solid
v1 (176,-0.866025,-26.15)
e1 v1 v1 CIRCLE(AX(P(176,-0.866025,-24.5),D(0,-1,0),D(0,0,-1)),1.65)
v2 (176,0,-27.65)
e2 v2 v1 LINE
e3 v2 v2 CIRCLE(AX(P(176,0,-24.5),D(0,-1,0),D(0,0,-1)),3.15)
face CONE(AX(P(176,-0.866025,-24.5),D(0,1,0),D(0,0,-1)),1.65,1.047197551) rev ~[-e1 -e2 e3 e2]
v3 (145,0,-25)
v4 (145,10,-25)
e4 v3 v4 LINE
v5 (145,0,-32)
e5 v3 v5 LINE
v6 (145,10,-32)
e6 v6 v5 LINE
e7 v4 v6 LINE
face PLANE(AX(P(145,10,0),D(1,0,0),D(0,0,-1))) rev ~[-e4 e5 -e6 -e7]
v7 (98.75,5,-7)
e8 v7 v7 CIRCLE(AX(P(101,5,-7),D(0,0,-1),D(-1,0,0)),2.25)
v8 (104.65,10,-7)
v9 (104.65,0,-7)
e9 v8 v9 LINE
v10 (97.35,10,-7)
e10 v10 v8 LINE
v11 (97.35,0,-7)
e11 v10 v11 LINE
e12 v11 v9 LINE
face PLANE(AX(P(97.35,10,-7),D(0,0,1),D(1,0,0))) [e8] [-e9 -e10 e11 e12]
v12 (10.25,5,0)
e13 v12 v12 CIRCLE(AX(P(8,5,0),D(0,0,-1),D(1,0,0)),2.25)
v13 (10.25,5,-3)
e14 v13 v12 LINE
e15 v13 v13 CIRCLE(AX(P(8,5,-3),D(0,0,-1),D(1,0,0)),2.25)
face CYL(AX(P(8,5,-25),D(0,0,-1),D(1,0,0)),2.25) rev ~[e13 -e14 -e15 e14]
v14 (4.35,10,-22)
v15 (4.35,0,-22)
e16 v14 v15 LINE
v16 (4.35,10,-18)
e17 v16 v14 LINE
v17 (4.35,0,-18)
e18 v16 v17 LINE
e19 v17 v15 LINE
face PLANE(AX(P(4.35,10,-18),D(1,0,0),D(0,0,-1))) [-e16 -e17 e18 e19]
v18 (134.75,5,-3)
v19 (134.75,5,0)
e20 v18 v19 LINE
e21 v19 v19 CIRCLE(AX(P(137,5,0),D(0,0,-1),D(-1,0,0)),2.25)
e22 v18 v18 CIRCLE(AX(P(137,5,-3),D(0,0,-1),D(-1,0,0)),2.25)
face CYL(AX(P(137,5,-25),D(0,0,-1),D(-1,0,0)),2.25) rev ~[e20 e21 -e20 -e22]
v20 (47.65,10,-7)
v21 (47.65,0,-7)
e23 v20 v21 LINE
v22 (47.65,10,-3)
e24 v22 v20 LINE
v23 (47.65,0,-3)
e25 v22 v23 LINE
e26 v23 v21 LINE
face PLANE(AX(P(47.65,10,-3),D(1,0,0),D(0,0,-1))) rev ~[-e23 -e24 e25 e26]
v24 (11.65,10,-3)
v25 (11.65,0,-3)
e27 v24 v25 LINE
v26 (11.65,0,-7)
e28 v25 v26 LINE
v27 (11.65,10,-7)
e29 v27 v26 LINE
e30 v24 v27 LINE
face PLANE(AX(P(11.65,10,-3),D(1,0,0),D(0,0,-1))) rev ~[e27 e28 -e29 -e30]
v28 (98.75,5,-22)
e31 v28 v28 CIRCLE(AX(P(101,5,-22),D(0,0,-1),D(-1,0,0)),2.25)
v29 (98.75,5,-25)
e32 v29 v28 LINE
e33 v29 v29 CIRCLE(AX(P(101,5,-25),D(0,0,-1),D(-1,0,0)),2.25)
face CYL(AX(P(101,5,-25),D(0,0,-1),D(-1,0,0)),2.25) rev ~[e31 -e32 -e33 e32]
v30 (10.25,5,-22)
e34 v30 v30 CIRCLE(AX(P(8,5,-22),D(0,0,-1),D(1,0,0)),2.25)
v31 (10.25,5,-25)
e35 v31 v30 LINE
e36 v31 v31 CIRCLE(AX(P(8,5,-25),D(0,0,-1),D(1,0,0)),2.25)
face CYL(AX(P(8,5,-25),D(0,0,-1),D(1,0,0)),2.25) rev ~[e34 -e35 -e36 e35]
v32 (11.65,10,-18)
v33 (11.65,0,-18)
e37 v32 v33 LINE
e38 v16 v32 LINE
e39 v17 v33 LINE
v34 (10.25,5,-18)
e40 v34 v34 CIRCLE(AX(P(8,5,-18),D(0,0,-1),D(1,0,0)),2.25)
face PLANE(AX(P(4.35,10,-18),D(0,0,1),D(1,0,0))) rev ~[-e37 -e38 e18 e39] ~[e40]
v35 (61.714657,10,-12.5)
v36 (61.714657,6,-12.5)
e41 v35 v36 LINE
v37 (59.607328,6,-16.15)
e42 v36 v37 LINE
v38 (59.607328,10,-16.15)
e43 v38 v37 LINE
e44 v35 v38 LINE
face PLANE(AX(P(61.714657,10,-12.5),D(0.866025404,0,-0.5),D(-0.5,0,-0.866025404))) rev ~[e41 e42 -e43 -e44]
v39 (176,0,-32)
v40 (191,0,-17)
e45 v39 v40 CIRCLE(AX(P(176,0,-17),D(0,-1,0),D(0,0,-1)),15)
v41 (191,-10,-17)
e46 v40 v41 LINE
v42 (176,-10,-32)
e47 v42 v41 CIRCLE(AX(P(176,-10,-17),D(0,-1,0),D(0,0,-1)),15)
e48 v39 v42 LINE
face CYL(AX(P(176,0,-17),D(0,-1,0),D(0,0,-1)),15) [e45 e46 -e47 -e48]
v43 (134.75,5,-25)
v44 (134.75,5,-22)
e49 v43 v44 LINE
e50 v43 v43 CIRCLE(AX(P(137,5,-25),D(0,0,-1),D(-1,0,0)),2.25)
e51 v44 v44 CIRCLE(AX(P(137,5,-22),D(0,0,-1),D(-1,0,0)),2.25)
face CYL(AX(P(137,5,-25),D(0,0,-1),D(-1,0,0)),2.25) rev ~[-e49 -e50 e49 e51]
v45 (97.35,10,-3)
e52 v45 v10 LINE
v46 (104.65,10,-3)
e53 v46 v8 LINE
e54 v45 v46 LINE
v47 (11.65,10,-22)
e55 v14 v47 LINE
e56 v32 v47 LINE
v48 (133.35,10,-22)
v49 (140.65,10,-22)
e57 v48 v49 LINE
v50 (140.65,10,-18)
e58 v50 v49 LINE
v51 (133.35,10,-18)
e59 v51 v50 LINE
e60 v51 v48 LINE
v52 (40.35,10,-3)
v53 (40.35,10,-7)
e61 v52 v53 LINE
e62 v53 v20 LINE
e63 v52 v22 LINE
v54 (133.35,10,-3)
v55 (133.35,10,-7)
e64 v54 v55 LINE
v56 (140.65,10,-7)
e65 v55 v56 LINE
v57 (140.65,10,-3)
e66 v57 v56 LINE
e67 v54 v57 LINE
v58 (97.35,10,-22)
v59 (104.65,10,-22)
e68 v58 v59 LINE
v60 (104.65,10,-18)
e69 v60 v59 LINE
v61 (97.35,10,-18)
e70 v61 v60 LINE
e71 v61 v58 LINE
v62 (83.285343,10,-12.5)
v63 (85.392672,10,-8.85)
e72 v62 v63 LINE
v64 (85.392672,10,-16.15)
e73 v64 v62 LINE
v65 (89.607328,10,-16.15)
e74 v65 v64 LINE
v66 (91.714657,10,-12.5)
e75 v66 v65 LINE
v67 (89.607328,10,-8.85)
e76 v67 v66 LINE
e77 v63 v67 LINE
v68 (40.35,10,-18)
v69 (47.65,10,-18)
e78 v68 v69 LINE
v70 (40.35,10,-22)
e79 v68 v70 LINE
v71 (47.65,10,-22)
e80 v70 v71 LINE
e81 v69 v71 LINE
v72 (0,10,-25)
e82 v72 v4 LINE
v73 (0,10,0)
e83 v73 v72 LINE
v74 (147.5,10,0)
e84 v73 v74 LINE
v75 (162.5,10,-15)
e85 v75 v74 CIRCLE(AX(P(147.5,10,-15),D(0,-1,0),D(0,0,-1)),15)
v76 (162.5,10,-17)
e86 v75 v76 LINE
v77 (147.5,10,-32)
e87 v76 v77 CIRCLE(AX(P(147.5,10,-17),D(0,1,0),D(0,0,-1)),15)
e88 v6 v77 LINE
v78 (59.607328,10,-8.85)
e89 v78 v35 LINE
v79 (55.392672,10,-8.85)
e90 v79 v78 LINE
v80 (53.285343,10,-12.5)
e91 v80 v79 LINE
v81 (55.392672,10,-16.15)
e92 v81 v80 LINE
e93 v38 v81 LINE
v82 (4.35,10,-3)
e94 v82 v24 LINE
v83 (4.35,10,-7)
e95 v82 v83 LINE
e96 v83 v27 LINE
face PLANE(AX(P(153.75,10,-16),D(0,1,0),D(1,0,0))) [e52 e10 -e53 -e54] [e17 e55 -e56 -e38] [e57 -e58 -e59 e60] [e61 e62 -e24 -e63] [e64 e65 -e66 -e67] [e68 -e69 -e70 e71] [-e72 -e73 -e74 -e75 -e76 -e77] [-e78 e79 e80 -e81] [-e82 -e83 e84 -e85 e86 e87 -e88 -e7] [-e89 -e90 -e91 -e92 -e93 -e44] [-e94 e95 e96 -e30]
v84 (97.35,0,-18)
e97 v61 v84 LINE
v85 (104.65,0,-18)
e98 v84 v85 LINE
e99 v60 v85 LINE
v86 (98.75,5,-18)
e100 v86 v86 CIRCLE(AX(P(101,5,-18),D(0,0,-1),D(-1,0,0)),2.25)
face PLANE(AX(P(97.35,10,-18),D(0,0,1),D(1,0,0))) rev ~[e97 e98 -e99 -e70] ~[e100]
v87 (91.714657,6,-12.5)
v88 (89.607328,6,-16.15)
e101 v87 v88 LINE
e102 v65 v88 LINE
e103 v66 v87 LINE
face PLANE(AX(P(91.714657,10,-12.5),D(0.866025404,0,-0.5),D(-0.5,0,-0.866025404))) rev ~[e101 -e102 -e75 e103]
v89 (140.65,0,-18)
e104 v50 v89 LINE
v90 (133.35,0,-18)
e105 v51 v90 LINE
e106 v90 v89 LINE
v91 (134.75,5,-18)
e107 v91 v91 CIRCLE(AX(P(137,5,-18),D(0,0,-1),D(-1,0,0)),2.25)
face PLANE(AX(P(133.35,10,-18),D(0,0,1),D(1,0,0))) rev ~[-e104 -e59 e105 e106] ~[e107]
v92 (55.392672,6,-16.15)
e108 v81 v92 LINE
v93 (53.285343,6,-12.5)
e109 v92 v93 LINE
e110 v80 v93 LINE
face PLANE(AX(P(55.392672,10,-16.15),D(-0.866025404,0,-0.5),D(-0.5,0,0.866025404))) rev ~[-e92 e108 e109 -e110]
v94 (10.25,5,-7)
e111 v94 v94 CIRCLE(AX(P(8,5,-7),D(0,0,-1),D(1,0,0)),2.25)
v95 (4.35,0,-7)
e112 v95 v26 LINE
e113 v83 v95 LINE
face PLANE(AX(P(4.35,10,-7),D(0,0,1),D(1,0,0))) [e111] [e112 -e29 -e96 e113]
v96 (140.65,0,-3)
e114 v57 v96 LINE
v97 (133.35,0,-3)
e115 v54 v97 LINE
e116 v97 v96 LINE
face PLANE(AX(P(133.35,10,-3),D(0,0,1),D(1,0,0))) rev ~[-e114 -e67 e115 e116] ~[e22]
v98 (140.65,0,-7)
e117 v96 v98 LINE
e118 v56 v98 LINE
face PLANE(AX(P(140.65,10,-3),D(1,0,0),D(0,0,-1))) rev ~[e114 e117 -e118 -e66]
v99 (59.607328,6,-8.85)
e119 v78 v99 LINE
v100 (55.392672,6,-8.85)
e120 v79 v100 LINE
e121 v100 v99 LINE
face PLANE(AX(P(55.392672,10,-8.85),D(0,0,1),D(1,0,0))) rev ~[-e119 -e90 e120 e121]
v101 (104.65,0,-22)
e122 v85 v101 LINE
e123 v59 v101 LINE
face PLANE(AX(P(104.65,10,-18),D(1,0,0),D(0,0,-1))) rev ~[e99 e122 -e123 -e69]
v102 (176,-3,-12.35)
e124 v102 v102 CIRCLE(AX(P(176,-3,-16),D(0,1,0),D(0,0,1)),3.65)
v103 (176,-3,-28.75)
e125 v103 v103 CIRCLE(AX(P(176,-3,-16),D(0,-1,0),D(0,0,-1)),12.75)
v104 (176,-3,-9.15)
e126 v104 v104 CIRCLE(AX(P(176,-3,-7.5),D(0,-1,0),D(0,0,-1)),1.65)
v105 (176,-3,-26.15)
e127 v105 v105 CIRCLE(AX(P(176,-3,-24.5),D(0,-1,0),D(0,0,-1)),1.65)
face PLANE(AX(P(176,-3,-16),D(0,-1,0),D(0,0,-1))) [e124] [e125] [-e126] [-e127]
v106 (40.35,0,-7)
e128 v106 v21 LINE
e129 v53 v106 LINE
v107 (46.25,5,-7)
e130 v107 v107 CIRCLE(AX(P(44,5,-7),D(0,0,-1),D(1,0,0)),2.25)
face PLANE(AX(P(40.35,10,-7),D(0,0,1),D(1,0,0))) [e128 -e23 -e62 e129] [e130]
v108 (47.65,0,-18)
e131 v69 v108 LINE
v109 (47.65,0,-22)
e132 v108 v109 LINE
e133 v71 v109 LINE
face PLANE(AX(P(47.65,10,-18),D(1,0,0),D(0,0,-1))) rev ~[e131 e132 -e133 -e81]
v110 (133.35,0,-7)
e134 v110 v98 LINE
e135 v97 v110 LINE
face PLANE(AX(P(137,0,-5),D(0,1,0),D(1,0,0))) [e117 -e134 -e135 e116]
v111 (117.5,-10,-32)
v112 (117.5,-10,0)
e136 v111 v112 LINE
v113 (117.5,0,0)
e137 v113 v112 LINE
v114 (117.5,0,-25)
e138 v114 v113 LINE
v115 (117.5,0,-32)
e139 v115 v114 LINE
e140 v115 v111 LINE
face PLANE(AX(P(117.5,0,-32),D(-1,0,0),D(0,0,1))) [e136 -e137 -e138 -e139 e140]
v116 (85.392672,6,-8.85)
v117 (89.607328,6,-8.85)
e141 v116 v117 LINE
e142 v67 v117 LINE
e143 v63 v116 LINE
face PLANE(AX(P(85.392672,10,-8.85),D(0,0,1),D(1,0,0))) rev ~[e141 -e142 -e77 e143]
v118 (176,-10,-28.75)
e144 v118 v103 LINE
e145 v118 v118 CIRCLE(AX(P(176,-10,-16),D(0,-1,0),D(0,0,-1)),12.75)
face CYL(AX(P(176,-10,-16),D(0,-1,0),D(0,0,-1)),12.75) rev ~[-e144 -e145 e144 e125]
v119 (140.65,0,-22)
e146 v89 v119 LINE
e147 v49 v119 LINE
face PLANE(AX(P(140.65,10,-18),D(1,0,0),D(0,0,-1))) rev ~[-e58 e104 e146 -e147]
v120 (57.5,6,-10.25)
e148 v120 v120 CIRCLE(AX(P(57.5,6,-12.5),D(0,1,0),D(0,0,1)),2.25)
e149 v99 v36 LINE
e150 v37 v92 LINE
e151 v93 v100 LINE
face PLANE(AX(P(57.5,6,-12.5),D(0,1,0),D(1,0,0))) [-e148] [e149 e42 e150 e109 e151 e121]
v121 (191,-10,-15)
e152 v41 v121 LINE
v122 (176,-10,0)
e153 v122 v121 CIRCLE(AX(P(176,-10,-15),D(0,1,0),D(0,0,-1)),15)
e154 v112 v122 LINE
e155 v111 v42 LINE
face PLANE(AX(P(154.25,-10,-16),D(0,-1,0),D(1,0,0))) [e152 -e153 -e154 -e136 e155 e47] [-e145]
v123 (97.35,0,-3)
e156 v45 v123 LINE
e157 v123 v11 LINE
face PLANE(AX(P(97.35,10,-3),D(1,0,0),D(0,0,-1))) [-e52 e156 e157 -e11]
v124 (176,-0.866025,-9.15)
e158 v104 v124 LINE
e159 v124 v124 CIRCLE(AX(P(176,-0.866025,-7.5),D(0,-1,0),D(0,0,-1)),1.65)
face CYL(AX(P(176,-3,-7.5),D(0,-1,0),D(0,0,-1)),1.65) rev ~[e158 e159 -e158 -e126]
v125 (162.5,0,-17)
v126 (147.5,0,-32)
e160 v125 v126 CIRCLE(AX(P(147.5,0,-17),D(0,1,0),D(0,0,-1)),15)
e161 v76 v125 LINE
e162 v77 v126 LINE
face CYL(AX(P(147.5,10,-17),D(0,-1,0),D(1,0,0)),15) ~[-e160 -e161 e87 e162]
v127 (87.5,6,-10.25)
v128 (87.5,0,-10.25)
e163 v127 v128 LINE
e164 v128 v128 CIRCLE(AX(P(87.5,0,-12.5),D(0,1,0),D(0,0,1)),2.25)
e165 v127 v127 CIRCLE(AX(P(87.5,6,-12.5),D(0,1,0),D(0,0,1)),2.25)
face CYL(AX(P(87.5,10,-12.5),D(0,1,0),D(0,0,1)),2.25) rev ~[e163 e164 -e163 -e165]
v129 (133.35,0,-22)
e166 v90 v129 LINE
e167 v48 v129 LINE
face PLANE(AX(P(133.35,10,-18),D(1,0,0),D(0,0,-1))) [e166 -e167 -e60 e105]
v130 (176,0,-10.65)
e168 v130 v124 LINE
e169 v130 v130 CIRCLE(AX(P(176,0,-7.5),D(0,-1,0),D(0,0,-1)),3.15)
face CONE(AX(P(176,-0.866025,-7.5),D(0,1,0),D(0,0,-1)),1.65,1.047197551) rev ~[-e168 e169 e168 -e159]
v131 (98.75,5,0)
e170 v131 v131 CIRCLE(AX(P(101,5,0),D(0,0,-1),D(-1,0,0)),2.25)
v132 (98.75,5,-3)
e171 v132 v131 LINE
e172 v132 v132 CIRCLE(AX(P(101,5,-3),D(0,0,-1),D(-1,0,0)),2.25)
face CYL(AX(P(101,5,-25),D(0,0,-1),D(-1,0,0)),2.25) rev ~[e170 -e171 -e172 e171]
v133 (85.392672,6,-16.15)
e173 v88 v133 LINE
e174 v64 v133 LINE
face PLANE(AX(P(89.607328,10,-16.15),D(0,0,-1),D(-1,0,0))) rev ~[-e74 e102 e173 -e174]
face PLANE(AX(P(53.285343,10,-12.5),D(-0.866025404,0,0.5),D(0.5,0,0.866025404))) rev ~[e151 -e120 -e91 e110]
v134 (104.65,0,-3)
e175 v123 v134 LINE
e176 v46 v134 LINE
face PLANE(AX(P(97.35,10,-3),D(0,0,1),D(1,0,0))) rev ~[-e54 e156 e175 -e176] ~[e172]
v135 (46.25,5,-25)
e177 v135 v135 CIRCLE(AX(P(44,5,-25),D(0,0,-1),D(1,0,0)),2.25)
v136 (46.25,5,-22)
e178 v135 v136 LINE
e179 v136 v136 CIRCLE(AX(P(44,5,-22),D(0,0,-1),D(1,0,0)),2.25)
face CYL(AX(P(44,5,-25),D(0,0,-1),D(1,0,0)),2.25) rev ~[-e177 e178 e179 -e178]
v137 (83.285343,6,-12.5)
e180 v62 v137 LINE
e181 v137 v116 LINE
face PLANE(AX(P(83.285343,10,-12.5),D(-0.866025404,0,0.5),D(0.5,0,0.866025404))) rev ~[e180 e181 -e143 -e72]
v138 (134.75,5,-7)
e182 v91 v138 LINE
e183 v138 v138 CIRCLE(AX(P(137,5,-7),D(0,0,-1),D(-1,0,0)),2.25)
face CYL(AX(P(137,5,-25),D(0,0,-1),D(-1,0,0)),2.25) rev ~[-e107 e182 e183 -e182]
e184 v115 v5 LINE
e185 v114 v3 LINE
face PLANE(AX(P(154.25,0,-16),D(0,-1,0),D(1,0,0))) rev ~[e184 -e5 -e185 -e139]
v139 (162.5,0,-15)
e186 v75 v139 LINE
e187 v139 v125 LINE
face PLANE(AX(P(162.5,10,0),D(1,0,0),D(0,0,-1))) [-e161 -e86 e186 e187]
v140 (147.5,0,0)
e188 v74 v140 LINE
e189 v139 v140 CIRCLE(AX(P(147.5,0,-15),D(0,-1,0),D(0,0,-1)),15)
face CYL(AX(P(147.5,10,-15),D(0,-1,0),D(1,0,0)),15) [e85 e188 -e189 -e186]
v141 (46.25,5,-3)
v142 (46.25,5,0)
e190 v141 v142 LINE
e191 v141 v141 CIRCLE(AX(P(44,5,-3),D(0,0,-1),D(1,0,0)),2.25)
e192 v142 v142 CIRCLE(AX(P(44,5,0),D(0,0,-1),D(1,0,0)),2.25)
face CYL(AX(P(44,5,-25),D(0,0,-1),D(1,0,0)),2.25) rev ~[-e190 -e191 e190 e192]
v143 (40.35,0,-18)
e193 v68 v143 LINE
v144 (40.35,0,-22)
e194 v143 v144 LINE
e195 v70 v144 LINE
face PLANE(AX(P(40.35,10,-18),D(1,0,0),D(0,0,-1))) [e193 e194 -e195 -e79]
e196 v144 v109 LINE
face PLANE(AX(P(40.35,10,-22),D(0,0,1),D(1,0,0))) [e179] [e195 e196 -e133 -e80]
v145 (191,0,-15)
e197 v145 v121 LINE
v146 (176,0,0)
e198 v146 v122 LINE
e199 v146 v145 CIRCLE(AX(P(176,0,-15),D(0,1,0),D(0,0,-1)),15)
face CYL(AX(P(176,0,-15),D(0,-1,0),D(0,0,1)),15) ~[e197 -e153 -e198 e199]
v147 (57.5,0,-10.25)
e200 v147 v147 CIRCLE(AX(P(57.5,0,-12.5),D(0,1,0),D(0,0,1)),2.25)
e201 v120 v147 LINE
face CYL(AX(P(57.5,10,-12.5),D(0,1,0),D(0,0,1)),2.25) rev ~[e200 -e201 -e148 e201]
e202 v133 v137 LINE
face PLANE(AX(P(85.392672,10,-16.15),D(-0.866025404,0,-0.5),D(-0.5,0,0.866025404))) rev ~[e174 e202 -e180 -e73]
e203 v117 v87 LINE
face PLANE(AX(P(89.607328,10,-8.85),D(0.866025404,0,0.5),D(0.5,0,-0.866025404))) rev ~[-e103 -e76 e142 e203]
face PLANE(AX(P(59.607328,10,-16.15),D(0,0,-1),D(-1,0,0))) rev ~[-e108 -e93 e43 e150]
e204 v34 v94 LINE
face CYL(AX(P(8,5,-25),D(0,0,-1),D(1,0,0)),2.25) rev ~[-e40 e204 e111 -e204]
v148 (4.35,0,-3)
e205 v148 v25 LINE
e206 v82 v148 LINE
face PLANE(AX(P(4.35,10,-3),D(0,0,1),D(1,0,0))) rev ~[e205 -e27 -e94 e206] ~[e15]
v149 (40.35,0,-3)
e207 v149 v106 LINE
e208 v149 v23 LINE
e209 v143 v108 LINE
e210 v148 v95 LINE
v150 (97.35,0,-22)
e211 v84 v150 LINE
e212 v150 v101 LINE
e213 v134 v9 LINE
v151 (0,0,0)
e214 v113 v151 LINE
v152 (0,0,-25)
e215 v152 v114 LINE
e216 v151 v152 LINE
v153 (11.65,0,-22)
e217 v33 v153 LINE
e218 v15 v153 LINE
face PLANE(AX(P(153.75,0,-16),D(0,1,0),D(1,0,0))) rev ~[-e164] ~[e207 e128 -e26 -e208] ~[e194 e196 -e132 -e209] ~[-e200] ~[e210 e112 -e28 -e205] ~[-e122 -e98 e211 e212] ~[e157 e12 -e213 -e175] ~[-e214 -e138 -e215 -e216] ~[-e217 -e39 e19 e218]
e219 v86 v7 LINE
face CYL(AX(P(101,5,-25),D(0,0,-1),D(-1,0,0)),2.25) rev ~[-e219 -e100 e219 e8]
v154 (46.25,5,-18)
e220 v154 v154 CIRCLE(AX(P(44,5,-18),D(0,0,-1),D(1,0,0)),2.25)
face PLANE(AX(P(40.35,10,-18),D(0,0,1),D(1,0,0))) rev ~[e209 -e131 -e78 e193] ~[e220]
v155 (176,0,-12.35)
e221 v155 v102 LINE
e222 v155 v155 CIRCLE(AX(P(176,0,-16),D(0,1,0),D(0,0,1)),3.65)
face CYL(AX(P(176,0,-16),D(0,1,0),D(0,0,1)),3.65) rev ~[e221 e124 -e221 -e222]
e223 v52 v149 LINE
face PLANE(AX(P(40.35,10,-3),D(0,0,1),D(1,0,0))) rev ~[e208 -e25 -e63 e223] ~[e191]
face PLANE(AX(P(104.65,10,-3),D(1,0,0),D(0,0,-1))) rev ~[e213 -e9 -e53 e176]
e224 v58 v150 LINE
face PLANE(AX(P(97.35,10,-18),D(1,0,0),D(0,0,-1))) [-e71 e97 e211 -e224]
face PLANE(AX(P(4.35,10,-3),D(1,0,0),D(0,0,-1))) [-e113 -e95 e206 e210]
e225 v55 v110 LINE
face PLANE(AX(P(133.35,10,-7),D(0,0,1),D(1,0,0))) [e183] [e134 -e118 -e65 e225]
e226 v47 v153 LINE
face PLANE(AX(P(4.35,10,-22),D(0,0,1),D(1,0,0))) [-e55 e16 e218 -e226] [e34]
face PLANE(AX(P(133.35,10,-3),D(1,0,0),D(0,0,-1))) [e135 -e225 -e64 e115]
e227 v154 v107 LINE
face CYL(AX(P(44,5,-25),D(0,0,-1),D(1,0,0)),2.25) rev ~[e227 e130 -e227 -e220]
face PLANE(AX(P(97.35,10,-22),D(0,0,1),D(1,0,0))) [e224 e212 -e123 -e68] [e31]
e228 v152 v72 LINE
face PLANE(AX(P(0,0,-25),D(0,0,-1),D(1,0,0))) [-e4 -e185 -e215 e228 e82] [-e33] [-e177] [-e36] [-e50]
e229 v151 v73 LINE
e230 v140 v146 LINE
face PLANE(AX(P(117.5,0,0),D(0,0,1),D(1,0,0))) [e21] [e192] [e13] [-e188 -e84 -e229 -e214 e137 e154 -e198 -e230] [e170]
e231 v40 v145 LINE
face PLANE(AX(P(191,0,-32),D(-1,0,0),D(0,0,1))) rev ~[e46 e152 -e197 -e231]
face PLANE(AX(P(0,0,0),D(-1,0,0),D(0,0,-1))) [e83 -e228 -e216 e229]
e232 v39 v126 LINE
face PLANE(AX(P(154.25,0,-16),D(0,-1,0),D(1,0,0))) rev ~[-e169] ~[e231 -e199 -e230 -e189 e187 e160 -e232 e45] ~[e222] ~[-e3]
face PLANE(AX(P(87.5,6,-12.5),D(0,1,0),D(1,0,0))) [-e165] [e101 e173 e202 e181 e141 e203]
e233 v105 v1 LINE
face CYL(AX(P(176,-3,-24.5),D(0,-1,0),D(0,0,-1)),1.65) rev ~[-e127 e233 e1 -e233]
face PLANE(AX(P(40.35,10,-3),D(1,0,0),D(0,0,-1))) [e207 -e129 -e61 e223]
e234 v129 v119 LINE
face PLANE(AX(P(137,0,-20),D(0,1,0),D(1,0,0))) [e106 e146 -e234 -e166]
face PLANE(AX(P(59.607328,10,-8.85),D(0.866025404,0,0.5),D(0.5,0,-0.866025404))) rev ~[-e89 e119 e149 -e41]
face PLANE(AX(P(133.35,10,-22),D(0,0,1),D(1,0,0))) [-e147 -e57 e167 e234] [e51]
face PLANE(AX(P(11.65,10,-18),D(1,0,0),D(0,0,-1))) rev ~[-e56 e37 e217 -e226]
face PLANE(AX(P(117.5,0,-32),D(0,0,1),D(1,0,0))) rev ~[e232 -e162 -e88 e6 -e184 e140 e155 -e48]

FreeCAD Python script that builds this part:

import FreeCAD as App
import Part
import Sketcher
Q = App.Units.Quantity


def edges_at(feature, points):
    """Names of the edges that pass closest to the given points."""
    edges = feature.Shape.Edges
    near = lambda p: min(range(len(edges)), key=lambda i: edges[i].distToShape(Part.Vertex(*p))[0])
    return sorted({f"Edge{near(p) + 1}" for p in points})

doc = App.newDocument("Part")
params = doc.addObject("Spreadsheet::Sheet", "Params")
for row, (alias, value) in enumerate([
    ("sketch1_width", "145 mm"),
    ("sketch1_height", "25 mm"),
    ("pad1_length", "10 mm"),
    ("sketch2_height", "32 mm"),
    ("sketch2_width", "17.5 mm"),
    ("pad2_length", "10 mm"),
    ("sketch3_height", "32 mm"),
    ("sketch3_width", "73.5 mm"),
    ("pad3_length", "10 mm"),
    ("sketch4_diameter", "4.5 mm"),
    ("sketch5_height", "4 mm"),
    ("sketch5_width", "7.3 mm"),
    ("pocket2_length", "10 mm"),
    ("sketch6_diameter", "7.3 mm"),
    ("sketch7_diameter", "25.5 mm"),
    ("pocket4_length", "7 mm"),
    ("sketch8_diameter", "3.3 mm"),
    ("sketch9_diameter", "3.3 mm"),
    ("chamfer_size", "1.5 mm"),
    ("chamfer_size2", "0.866025 mm"),
    ("fillet_radius", "15 mm"),
    ("sketch10_diameter", "4.5 mm"),
    ("pocket8_length", "4 mm"),
], start=1):
    params.set(f"A{row}", alias)
    params.set(f"B{row}", "=" + value)
    params.setAlias(f"B{row}", alias)

body = doc.addObject("PartDesign::Body", "Body")

sketch1 = body.newObject("Sketcher::SketchObject", "Sketch")
sketch1.AttachmentSupport = (doc.getObject("XZ_Plane"), [""])
sketch1.MapMode = "FlatFace"
sketch1.addGeometry([
    Part.LineSegment(App.Vector(0, -25, 0), App.Vector(0, 0, 0)),
    Part.LineSegment(App.Vector(0, 0, 0), App.Vector(145, 0, 0)),
    Part.LineSegment(App.Vector(145, 0, 0), App.Vector(145, -25, 0)),
    Part.LineSegment(App.Vector(145, -25, 0), App.Vector(0, -25, 0)),
], False)
sketch1.addConstraint([
    Sketcher.Constraint("Coincident", 0, 2, 1, 1),
    Sketcher.Constraint("Coincident", 1, 2, 2, 1),
    Sketcher.Constraint("Coincident", 2, 2, 3, 1),
    Sketcher.Constraint("Coincident", 3, 2, 0, 1),
    Sketcher.Constraint("Vertical", 0),
    Sketcher.Constraint("Horizontal", 1),
    Sketcher.Constraint("Vertical", 2),
    Sketcher.Constraint("Horizontal", 3),
    Sketcher.Constraint("Coincident", 0, 2, -1, 1),
    Sketcher.Constraint("DistanceX", 1, 1, 1, 2, Q("145 mm")),
    Sketcher.Constraint("DistanceY", 0, 1, 0, 2, Q("25 mm")),
])
sketch1.setExpression("Constraints[9]", "Params.sketch1_width")
sketch1.setExpression("Constraints[10]", "Params.sketch1_height")
pad1 = body.newObject("PartDesign::Pad", "Pad")
pad1.Profile = sketch1
pad1.setExpression("Length", "Params.pad1_length")
pad1.Reversed = True

sketch2 = body.newObject("Sketcher::SketchObject", "Sketch001")
sketch2.AttachmentSupport = (doc.getObject("XZ_Plane"), [""])
sketch2.MapMode = "FlatFace"
sketch2.AttachmentOffset = App.Placement(App.Vector(0, 0, -10), App.Rotation())
sketch2.addGeometry([
    Part.LineSegment(App.Vector(145, -32, 0), App.Vector(145, 0, 0)),
    Part.LineSegment(App.Vector(145, 0, 0), App.Vector(162, 0, 0)),
    Part.LineSegment(App.Vector(162, 0, 0), App.Vector(162, -32, 0)),
    Part.LineSegment(App.Vector(162, -32, 0), App.Vector(145, -32, 0)),
], False)
sketch2.addConstraint([
    Sketcher.Constraint("Coincident", 0, 2, 1, 1),
    Sketcher.Constraint("Coincident", 1, 2, 2, 1),
    Sketcher.Constraint("Coincident", 2, 2, 3, 1),
    Sketcher.Constraint("Coincident", 3, 2, 0, 1),
    Sketcher.Constraint("Vertical", 0),
    Sketcher.Constraint("Horizontal", 1),
    Sketcher.Constraint("Vertical", 2),
    Sketcher.Constraint("Horizontal", 3),
    Sketcher.Constraint("PointOnObject", 0, 2, -1),
    Sketcher.Constraint("DistanceY", 0, 1, 0, 2, Q("32 mm")),
    Sketcher.Constraint("DistanceX", 1, 1, 1, 2, Q("17.5 mm")),
    Sketcher.Constraint("DistanceX", -1, 1, 0, 2, Q("145 mm")),
])
sketch2.setExpression("Constraints[9]", "Params.sketch2_height")
sketch2.setExpression("Constraints[10]", "Params.sketch2_width")
pad2 = body.newObject("PartDesign::Pad", "Pad001")
pad2.Profile = sketch2
pad2.setExpression("Length", "Params.pad2_length")

sketch3 = body.newObject("Sketcher::SketchObject", "Sketch002")
sketch3.AttachmentSupport = (doc.getObject("XZ_Plane"), [""])
sketch3.MapMode = "FlatFace"
sketch3.addGeometry([
    Part.LineSegment(App.Vector(118, 0, 0), App.Vector(118, -32, 0)),
    Part.LineSegment(App.Vector(118, -32, 0), App.Vector(191, -32, 0)),
    Part.LineSegment(App.Vector(191, -32, 0), App.Vector(191, 0, 0)),
    Part.LineSegment(App.Vector(191, 0, 0), App.Vector(118, 0, 0)),
], False)
sketch3.addConstraint([
    Sketcher.Constraint("Coincident", 0, 2, 1, 1),
    Sketcher.Constraint("Coincident", 1, 2, 2, 1),
    Sketcher.Constraint("Coincident", 2, 2, 3, 1),
    Sketcher.Constraint("Coincident", 3, 2, 0, 1),
    Sketcher.Constraint("Vertical", 0),
    Sketcher.Constraint("Horizontal", 1),
    Sketcher.Constraint("Vertical", 2),
    Sketcher.Constraint("Horizontal", 3),
    Sketcher.Constraint("PointOnObject", 2, 2, -1),
    Sketcher.Constraint("DistanceY", 0, 2, 0, 1, Q("32 mm")),
    Sketcher.Constraint("DistanceX", 1, 1, 1, 2, Q("73.5 mm")),
    Sketcher.Constraint("DistanceX", -1, 1, 1, 2, Q("191 mm")),
])
sketch3.setExpression("Constraints[9]", "Params.sketch3_height")
sketch3.setExpression("Constraints[10]", "Params.sketch3_width")
pad3 = body.newObject("PartDesign::Pad", "Pad002")
pad3.Profile = sketch3
pad3.setExpression("Length", "Params.pad3_length")

sketch4 = body.newObject("Sketcher::SketchObject", "Sketch003")
sketch4.AttachmentSupport = (doc.getObject("XY_Plane"), [""])
sketch4.MapMode = "FlatFace"
sketch4.AttachmentOffset = App.Placement(App.Vector(0, 0, -25), App.Rotation())
sketch4.addGeometry([
    Part.Circle(App.Vector(137, 5, 0), App.Vector(0, 0, 1), 2.2),
    Part.Circle(App.Vector(101, 5, 0), App.Vector(0, 0, 1), 2.2),
    Part.Circle(App.Vector(44, 5, 0), App.Vector(0, 0, 1), 2.2),
    Part.Circle(App.Vector(8, 5, 0), App.Vector(0, 0, 1), 2.2),
], False)
sketch4.addConstraint([
    Sketcher.Constraint("Equal", 0, 1),
    Sketcher.Constraint("Equal", 1, 2),
    Sketcher.Constraint("Equal", 2, 3),
    Sketcher.Constraint("Horizontal", 0, 3, 1, 3),
    Sketcher.Constraint("Horizontal", 1, 3, 2, 3),
    Sketcher.Constraint("Horizontal", 2, 3, 3, 3),
    Sketcher.Constraint("Diameter", 0, Q("4.5 mm")),
    Sketcher.Constraint("DistanceX", -1, 1, 0, 3, Q("137 mm")),
    Sketcher.Constraint("DistanceY", -1, 1, 0, 3, Q("5 mm")),
    Sketcher.Constraint("DistanceX", -1, 1, 1, 3, Q("101 mm")),
    Sketcher.Constraint("DistanceX", -1, 1, 2, 3, Q("44 mm")),
    Sketcher.Constraint("DistanceX", -1, 1, 3, 3, Q("8 mm")),
])
sketch4.setExpression("Constraints[6]", "Params.sketch4_diameter")
pocket1 = body.newObject("PartDesign::Pocket", "Pocket")
pocket1.Profile = sketch4
pocket1.Type = "ThroughAll"
pocket1.Reversed = True

sketch5 = body.newObject("Sketcher::SketchObject", "Sketch004")
sketch5.AttachmentSupport = (doc.getObject("XZ_Plane"), [""])
sketch5.MapMode = "FlatFace"
sketch5.AttachmentOffset = App.Placement(App.Vector(0, 0, -10), App.Rotation())
sketch5.addGeometry([
    Part.LineSegment(App.Vector(133.3, -22, 0), App.Vector(133.3, -18, 0)),
    Part.LineSegment(App.Vector(133.3, -18, 0), App.Vector(140.7, -18, 0)),
    Part.LineSegment(App.Vector(140.7, -18, 0), App.Vector(140.7, -22, 0)),
    Part.LineSegment(App.Vector(140.7, -22, 0), App.Vector(133.3, -22, 0)),
    Part.LineSegment(App.Vector(133.3, -7, 0), App.Vector(133.3, -3, 0)),
    Part.LineSegment(App.Vector(133.3, -3, 0), App.Vector(140.7, -3, 0)),
    Part.LineSegment(App.Vector(140.7, -3, 0), App.Vector(140.7, -7, 0)),
    Part.LineSegment(App.Vector(140.7, -7, 0), App.Vector(133.3, -7, 0)),
    Part.LineSegment(App.Vector(97.3, -7, 0), App.Vector(97.3, -3, 0)),
    Part.LineSegment(App.Vector(97.3, -3, 0), App.Vector(104.7, -3, 0)),
    Part.LineSegment(App.Vector(104.7, -3, 0), App.Vector(104.7, -7, 0)),
    Part.LineSegment(App.Vector(104.7, -7, 0), App.Vector(97.3, -7, 0)),
    Part.LineSegment(App.Vector(97.3, -22, 0), App.Vector(97.3, -18, 0)),
    Part.LineSegment(App.Vector(97.3, -18, 0), App.Vector(104.7, -18, 0)),
    Part.LineSegment(App.Vector(104.7, -18, 0), App.Vector(104.7, -22, 0)),
    Part.LineSegment(App.Vector(104.7, -22, 0), App.Vector(97.3, -22, 0)),
    Part.LineSegment(App.Vector(4.3, -22, 0), App.Vector(4.3, -18, 0)),
    Part.LineSegment(App.Vector(4.3, -18, 0), App.Vector(11.7, -18, 0)),
    Part.LineSegment(App.Vector(11.7, -18, 0), App.Vector(11.7, -22, 0)),
    Part.LineSegment(App.Vector(11.7, -22, 0), App.Vector(4.3, -22, 0)),
    Part.LineSegment(App.Vector(40.4, -22, 0), App.Vector(40.4, -18, 0)),
    Part.LineSegment(App.Vector(40.4, -18, 0), App.Vector(47.6, -18, 0)),
    Part.LineSegment(App.Vector(47.6, -18, 0), App.Vector(47.6, -22, 0)),
    Part.LineSegment(App.Vector(47.6, -22, 0), App.Vector(40.4, -22, 0)),
    Part.LineSegment(App.Vector(40.4, -7, 0), App.Vector(40.4, -3, 0)),
    Part.LineSegment(App.Vector(40.4, -3, 0), App.Vector(47.6, -3, 0)),
    Part.LineSegment(App.Vector(47.6, -3, 0), App.Vector(47.6, -7, 0)),
    Part.LineSegment(App.Vector(47.6, -7, 0), App.Vector(40.4, -7, 0)),
    Part.LineSegment(App.Vector(4.3, -7, 0), App.Vector(4.3, -3, 0)),
    Part.LineSegment(App.Vector(4.3, -3, 0), App.Vector(11.7, -3, 0)),
    Part.LineSegment(App.Vector(11.7, -3, 0), App.Vector(11.7, -7, 0)),
    Part.LineSegment(App.Vector(11.7, -7, 0), App.Vector(4.3, -7, 0)),
], False)
sketch5.addConstraint([
    Sketcher.Constraint("Coincident", 0, 2, 1, 1),
    Sketcher.Constraint("Coincident", 1, 2, 2, 1),
    Sketcher.Constraint("Coincident", 2, 2, 3, 1),
    Sketcher.Constraint("Coincident", 3, 2, 0, 1),
    Sketcher.Constraint("Coincident", 4, 2, 5, 1),
    Sketcher.Constraint("Coincident", 5, 2, 6, 1),
    Sketcher.Constraint("Coincident", 6, 2, 7, 1),
    Sketcher.Constraint("Coincident", 7, 2, 4, 1),
    Sketcher.Constraint("Coincident", 8, 2, 9, 1),
    Sketcher.Constraint("Coincident", 9, 2, 10, 1),
    Sketcher.Constraint("Coincident", 10, 2, 11, 1),
    Sketcher.Constraint("Coincident", 11, 2, 8, 1),
    Sketcher.Constraint("Coincident", 12, 2, 13, 1),
    Sketcher.Constraint("Coincident", 13, 2, 14, 1),
    Sketcher.Constraint("Coincident", 14, 2, 15, 1),
    Sketcher.Constraint("Coincident", 15, 2, 12, 1),
    Sketcher.Constraint("Coincident", 16, 2, 17, 1),
    Sketcher.Constraint("Coincident", 17, 2, 18, 1),
    Sketcher.Constraint("Coincident", 18, 2, 19, 1),
    Sketcher.Constraint("Coincident", 19, 2, 16, 1),
    Sketcher.Constraint("Coincident", 20, 2, 21, 1),
    Sketcher.Constraint("Coincident", 21, 2, 22, 1),
    Sketcher.Constraint("Coincident", 22, 2, 23, 1),
    Sketcher.Constraint("Coincident", 23, 2, 20, 1),
    Sketcher.Constraint("Coincident", 24, 2, 25, 1),
    Sketcher.Constraint("Coincident", 25, 2, 26, 1),
    Sketcher.Constraint("Coincident", 26, 2, 27, 1),
    Sketcher.Constraint("Coincident", 27, 2, 24, 1),
    Sketcher.Constraint("Coincident", 28, 2, 29, 1),
    Sketcher.Constraint("Coincident", 29, 2, 30, 1),
    Sketcher.Constraint("Coincident", 30, 2, 31, 1),
    Sketcher.Constraint("Coincident", 31, 2, 28, 1),
    Sketcher.Constraint("Vertical", 0),
    Sketcher.Constraint("Horizontal", 1),
    Sketcher.Constraint("Vertical", 2),
    Sketcher.Constraint("Horizontal", 3),
    Sketcher.Constraint("Vertical", 4),
    Sketcher.Constraint("Horizontal", 5),
    Sketcher.Constraint("Vertical", 6),
    Sketcher.Constraint("Horizontal", 7),
    Sketcher.Constraint("Vertical", 8),
    Sketcher.Constraint("Horizontal", 9),
    Sketcher.Constraint("Vertical", 10),
    Sketcher.Constraint("Horizontal", 11),
    Sketcher.Constraint("Vertical", 12),
    Sketcher.Constraint("Horizontal", 13),
    Sketcher.Constraint("Vertical", 14),
    Sketcher.Constraint("Horizontal", 15),
    Sketcher.Constraint("Vertical", 16),
    Sketcher.Constraint("Horizontal", 17),
    Sketcher.Constraint("Vertical", 18),
    Sketcher.Constraint("Horizontal", 19),
    Sketcher.Constraint("Vertical", 20),
    Sketcher.Constraint("Horizontal", 21),
    Sketcher.Constraint("Vertical", 22),
    Sketcher.Constraint("Horizontal", 23),
    Sketcher.Constraint("Vertical", 24),
    Sketcher.Constraint("Horizontal", 25),
    Sketcher.Constraint("Vertical", 26),
    Sketcher.Constraint("Horizontal", 27),
    Sketcher.Constraint("Vertical", 28),
    Sketcher.Constraint("Horizontal", 29),
    Sketcher.Constraint("Vertical", 30),
    Sketcher.Constraint("Horizontal", 31),
    Sketcher.Constraint("Horizontal", 5, 2, 8, 2),
    Sketcher.Constraint("Horizontal", 7, 2, 10, 2),
    Sketcher.Constraint("Horizontal", 1, 2, 12, 2),
    Sketcher.Constraint("Horizontal", 3, 2, 14, 2),
    Sketcher.Constraint("Horizontal", 13, 2, 16, 2),
    Sketcher.Constraint("Horizontal", 15, 2, 18, 2),
    Sketcher.Constraint("Horizontal", 17, 2, 20, 2),
    Sketcher.Constraint("Horizontal", 19, 2, 22, 2),
    Sketcher.Constraint("Horizontal", 9, 2, 24, 2),
    Sketcher.Constraint("Horizontal", 11, 2, 26, 2),
    Sketcher.Constraint("Horizontal", 25, 2, 28, 2),
    Sketcher.Constraint("Horizontal", 27, 2, 30, 2),
    Sketcher.Constraint("Vertical", 3, 2, 4, 2),
    Sketcher.Constraint("Vertical", 2, 2, 5, 2),
    Sketcher.Constraint("Vertical", 11, 2, 12, 2),
    Sketcher.Constraint("Vertical", 10, 2, 13, 2),
    Sketcher.Constraint("Vertical", 23, 2, 24, 2),
    Sketcher.Constraint("Vertical", 22, 2, 25, 2),
    Sketcher.Constraint("Vertical", 19, 2, 28, 2),
    Sketcher.Constraint("Vertical", 18, 2, 29, 2),
    Sketcher.Constraint("Equal", 7, 9),
    Sketcher.Constraint("Equal", 15, 17),
    Sketcher.Constraint("Equal", 19, 21),
    Sketcher.Constraint("Equal", 2, 4),
    Sketcher.Constraint("DistanceY", 0, 1, 0, 2, Q("4 mm")),
    Sketcher.Constraint("DistanceX", 1, 1, 1, 2, Q("7.3 mm")),
    Sketcher.Constraint("DistanceY", 0, 2, -1, 1, Q("18 mm")),
    Sketcher.Constraint("DistanceY", 4, 2, -1, 1, Q("3 mm")),
    Sketcher.Constraint("DistanceX", 8, 2, 4, 2, Q("36 mm")),
    Sketcher.Constraint("DistanceX", 16, 2, 12, 2, Q("93 mm")),
    Sketcher.Constraint("DistanceX", 16, 2, 20, 2, Q("36 mm")),
    Sketcher.Constraint("DistanceX", -1, 1, 0, 2, Q("133.35 mm")),
])
sketch5.setExpression("Constraints[88]", "Params.sketch5_height")
sketch5.setExpression("Constraints[89]", "Params.sketch5_width")
pocket2 = body.newObject("PartDesign::Pocket", "Pocket001")
pocket2.Profile = sketch5
pocket2.setExpression("Length", "Params.pocket2_length")
pocket2.Reversed = True

sketch6 = body.newObject("Sketcher::SketchObject", "Sketch005")
sketch6.AttachmentSupport = (doc.getObject("XZ_Plane"), [""])
sketch6.MapMode = "FlatFace"
sketch6.addGeometry(Part.Circle(App.Vector(176, -16, 0), App.Vector(0, 0, 1), 3.6), False)
sketch6.addConstraint([
    Sketcher.Constraint("Diameter", 0, Q("7.3 mm")),
    Sketcher.Constraint("DistanceX", -1, 1, 0, 3, Q("176 mm")),
    Sketcher.Constraint("DistanceY", 0, 3, -1, 1, Q("16 mm")),
])
sketch6.setExpression("Constraints[0]", "Params.sketch6_diameter")
pocket3 = body.newObject("PartDesign::Pocket", "Pocket002")
pocket3.Profile = sketch6
pocket3.Type = "UpToFirst"
pocket3.Reversed = True

sketch7 = body.newObject("Sketcher::SketchObject", "Sketch006")
sketch7.AttachmentSupport = (doc.getObject("XZ_Plane"), [""])
sketch7.MapMode = "FlatFace"
sketch7.AttachmentOffset = App.Placement(App.Vector(0, 0, 10), App.Rotation())
sketch7.addGeometry(Part.Circle(App.Vector(176, -16, 0), App.Vector(0, 0, 1), 13), False)
sketch7.addConstraint([
    Sketcher.Constraint("Diameter", 0, Q("25.5 mm")),
    Sketcher.Constraint("DistanceX", -1, 1, 0, 3, Q("176 mm")),
    Sketcher.Constraint("DistanceY", 0, 3, -1, 1, Q("16 mm")),
])
sketch7.setExpression("Constraints[0]", "Params.sketch7_diameter")
pocket4 = body.newObject("PartDesign::Pocket", "Pocket003")
pocket4.Profile = sketch7
pocket4.setExpression("Length", "Params.pocket4_length")

sketch8 = body.newObject("Sketcher::SketchObject", "Sketch007")
sketch8.AttachmentSupport = (doc.getObject("XZ_Plane"), [""])
sketch8.MapMode = "FlatFace"
sketch8.AttachmentOffset = App.Placement(App.Vector(0, 0, 3), App.Rotation())
sketch8.addGeometry(Part.Circle(App.Vector(176, -7.5, 0), App.Vector(0, 0, 1), 1.6), False)
sketch8.addConstraint([
    Sketcher.Constraint("Diameter", 0, Q("3.3 mm")),
    Sketcher.Constraint("DistanceX", -1, 1, 0, 3, Q("176 mm")),
    Sketcher.Constraint("DistanceY", 0, 3, -1, 1, Q("7.5 mm")),
])
sketch8.setExpression("Constraints[0]", "Params.sketch8_diameter")
pocket5 = body.newObject("PartDesign::Pocket", "Pocket004")
pocket5.Profile = sketch8
pocket5.Type = "UpToFirst"

sketch9 = body.newObject("Sketcher::SketchObject", "Sketch008")
sketch9.AttachmentSupport = (doc.getObject("XZ_Plane"), [""])
sketch9.MapMode = "FlatFace"
sketch9.AttachmentOffset = App.Placement(App.Vector(0, 0, 3), App.Rotation())
sketch9.addGeometry(Part.Circle(App.Vector(176, -24.5, 0), App.Vector(0, 0, 1), 1.6), False)
sketch9.addConstraint([
    Sketcher.Constraint("Diameter", 0, Q("3.3 mm")),
    Sketcher.Constraint("DistanceX", -1, 1, 0, 3, Q("176 mm")),
    Sketcher.Constraint("DistanceY", 0, 3, -1, 1, Q("24.5 mm")),
])
sketch9.setExpression("Constraints[0]", "Params.sketch9_diameter")
pocket6 = body.newObject("PartDesign::Pocket", "Pocket005")
pocket6.Profile = sketch9
pocket6.Type = "UpToFirst"
doc.recompute()

chamfer = body.newObject("PartDesign::Chamfer", "Chamfer")
chamfer.Base = (pocket6, edges_at(pocket6, [(176, 0, -5.85), (176, 0, -22.85)]))
chamfer.ChamferType = "Two distances"
chamfer.setExpression("Size", "Params.chamfer_size")
chamfer.setExpression("Size2", "Params.chamfer_size2")
doc.recompute()

fillet = body.newObject("PartDesign::Fillet", "Fillet")
fillet.Base = (chamfer, edges_at(chamfer, [
    (162.5, 5, -32),
    (162.5, 5, 0),
    (191, -5, -32),
    (191, -5, 0),
]))
fillet.setExpression("Radius", "Params.fillet_radius")

sketch10 = body.newObject("Sketcher::SketchObject", "Sketch009")
sketch10.AttachmentSupport = (doc.getObject("XZ_Plane"), [""])
sketch10.MapMode = "FlatFace"
sketch10.AttachmentOffset = App.Placement(App.Vector(0, 0, -10), App.Rotation())
sketch10.addGeometry([
    Part.Circle(App.Vector(57.5, -12.5, 0), App.Vector(0, 0, 1), 2.2),
    Part.Circle(App.Vector(87.5, -12.5, 0), App.Vector(0, 0, 1), 2.2),
], False)
sketch10.addConstraint([
    Sketcher.Constraint("Equal", 0, 1),
    Sketcher.Constraint("Horizontal", 0, 3, 1, 3),
    Sketcher.Constraint("Diameter", 0, Q("4.5 mm")),
    Sketcher.Constraint("DistanceX", 0, 3, 1, 3, Q("30 mm")),
    Sketcher.Constraint("DistanceX", -1, 1, 0, 3, Q("57.5 mm")),
    Sketcher.Constraint("DistanceY", 0, 3, -1, 1, Q("12.5 mm")),
])
sketch10.setExpression("Constraints[2]", "Params.sketch10_diameter")
pocket7 = body.newObject("PartDesign::Pocket", "Pocket006")
pocket7.Profile = sketch10
pocket7.Type = "ThroughAll"
pocket7.Reversed = True

sketch11 = body.newObject("Sketcher::SketchObject", "Sketch010")
sketch11.AttachmentSupport = (doc.getObject("XZ_Plane"), [""])
sketch11.MapMode = "FlatFace"
sketch11.AttachmentOffset = App.Placement(App.Vector(0, 0, -10), App.Rotation())
sketch11.addGeometry([
    Part.LineSegment(App.Vector(91.7, -12.5, 0), App.Vector(89.6, -16.1, 0)),
    Part.LineSegment(App.Vector(89.6, -16.1, 0), App.Vector(85.4, -16.1, 0)),
    Part.LineSegment(App.Vector(85.4, -16.1, 0), App.Vector(83.3, -12.5, 0)),
    Part.LineSegment(App.Vector(83.3, -12.5, 0), App.Vector(85.4, -8.8, 0)),
    Part.LineSegment(App.Vector(85.4, -8.8, 0), App.Vector(89.6, -8.8, 0)),
    Part.LineSegment(App.Vector(89.6, -8.8, 0), App.Vector(91.7, -12.5, 0)),
    Part.LineSegment(App.Vector(61.7, -12.5, 0), App.Vector(59.6, -16.1, 0)),
    Part.LineSegment(App.Vector(59.6, -16.1, 0), App.Vector(55.4, -16.1, 0)),
    Part.LineSegment(App.Vector(55.4, -16.1, 0), App.Vector(53.3, -12.5, 0)),
    Part.LineSegment(App.Vector(53.3, -12.5, 0), App.Vector(55.4, -8.8, 0)),
    Part.LineSegment(App.Vector(55.4, -8.8, 0), App.Vector(59.6, -8.8, 0)),
    Part.LineSegment(App.Vector(59.6, -8.8, 0), App.Vector(61.7, -12.5, 0)),
], False)
sketch11.addConstraint([
    Sketcher.Constraint("Coincident", 0, 2, 1, 1),
    Sketcher.Constraint("Coincident", 1, 2, 2, 1),
    Sketcher.Constraint("Coincident", 2, 2, 3, 1),
    Sketcher.Constraint("Coincident", 3, 2, 4, 1),
    Sketcher.Constraint("Coincident", 4, 2, 5, 1),
    Sketcher.Constraint("Coincident", 5, 2, 0, 1),
    Sketcher.Constraint("Coincident", 6, 2, 7, 1),
    Sketcher.Constraint("Coincident", 7, 2, 8, 1),
    Sketcher.Constraint("Coincident", 8, 2, 9, 1),
    Sketcher.Constraint("Coincident", 9, 2, 10, 1),
    Sketcher.Constraint("Coincident", 10, 2, 11, 1),
    Sketcher.Constraint("Coincident", 11, 2, 6, 1),
    Sketcher.Constraint("Horizontal", 1),
    Sketcher.Constraint("Horizontal", 4),
    Sketcher.Constraint("Horizontal", 7),
    Sketcher.Constraint("Horizontal", 10),
    Sketcher.Constraint("Parallel", 0, 3),
    Sketcher.Constraint("Parallel", 2, 5),
    Sketcher.Constraint("Parallel", 3, 6),
    Sketcher.Constraint("Parallel", 5, 8),
    Sketcher.Constraint("Parallel", 6, 9),
    Sketcher.Constraint("Parallel", 8, 11),
    Sketcher.Constraint("Horizontal", 2, 2, 5, 2),
    Sketcher.Constraint("Horizontal", 1, 2, 6, 2),
    Sketcher.Constraint("Horizontal", 5, 2, 8, 2),
    Sketcher.Constraint("Horizontal", 4, 2, 9, 2),
    Sketcher.Constraint("Horizontal", 8, 2, 11, 2),
    Sketcher.Constraint("Vertical", 1, 2, 3, 2),
    Sketcher.Constraint("Vertical", 0, 2, 4, 2),
    Sketcher.Constraint("Equal", 4, 7),
    Sketcher.Constraint("Angle", 0, Q("-120 deg")),
    Sketcher.Constraint("DistanceX", 6, 2, 0, 2, Q("30 mm")),
    Sketcher.Constraint("DistanceY", 2, 2, -1, 1, Q("12.5 mm")),
    Sketcher.Constraint("DistanceY", 1, 2, 3, 2, Q("7.3 mm")),
    Sketcher.Constraint("DistanceX", 1, 2, 1, 1, Q("4.214657 mm")),
    Sketcher.Constraint("DistanceX", -1, 1, 0, 2, Q("89.607328 mm")),
])
pocket8 = body.newObject("PartDesign::Pocket", "Pocket007")
pocket8.Profile = sketch11
pocket8.setExpression("Length", "Params.pocket8_length")
pocket8.Reversed = True

doc.recompute()
